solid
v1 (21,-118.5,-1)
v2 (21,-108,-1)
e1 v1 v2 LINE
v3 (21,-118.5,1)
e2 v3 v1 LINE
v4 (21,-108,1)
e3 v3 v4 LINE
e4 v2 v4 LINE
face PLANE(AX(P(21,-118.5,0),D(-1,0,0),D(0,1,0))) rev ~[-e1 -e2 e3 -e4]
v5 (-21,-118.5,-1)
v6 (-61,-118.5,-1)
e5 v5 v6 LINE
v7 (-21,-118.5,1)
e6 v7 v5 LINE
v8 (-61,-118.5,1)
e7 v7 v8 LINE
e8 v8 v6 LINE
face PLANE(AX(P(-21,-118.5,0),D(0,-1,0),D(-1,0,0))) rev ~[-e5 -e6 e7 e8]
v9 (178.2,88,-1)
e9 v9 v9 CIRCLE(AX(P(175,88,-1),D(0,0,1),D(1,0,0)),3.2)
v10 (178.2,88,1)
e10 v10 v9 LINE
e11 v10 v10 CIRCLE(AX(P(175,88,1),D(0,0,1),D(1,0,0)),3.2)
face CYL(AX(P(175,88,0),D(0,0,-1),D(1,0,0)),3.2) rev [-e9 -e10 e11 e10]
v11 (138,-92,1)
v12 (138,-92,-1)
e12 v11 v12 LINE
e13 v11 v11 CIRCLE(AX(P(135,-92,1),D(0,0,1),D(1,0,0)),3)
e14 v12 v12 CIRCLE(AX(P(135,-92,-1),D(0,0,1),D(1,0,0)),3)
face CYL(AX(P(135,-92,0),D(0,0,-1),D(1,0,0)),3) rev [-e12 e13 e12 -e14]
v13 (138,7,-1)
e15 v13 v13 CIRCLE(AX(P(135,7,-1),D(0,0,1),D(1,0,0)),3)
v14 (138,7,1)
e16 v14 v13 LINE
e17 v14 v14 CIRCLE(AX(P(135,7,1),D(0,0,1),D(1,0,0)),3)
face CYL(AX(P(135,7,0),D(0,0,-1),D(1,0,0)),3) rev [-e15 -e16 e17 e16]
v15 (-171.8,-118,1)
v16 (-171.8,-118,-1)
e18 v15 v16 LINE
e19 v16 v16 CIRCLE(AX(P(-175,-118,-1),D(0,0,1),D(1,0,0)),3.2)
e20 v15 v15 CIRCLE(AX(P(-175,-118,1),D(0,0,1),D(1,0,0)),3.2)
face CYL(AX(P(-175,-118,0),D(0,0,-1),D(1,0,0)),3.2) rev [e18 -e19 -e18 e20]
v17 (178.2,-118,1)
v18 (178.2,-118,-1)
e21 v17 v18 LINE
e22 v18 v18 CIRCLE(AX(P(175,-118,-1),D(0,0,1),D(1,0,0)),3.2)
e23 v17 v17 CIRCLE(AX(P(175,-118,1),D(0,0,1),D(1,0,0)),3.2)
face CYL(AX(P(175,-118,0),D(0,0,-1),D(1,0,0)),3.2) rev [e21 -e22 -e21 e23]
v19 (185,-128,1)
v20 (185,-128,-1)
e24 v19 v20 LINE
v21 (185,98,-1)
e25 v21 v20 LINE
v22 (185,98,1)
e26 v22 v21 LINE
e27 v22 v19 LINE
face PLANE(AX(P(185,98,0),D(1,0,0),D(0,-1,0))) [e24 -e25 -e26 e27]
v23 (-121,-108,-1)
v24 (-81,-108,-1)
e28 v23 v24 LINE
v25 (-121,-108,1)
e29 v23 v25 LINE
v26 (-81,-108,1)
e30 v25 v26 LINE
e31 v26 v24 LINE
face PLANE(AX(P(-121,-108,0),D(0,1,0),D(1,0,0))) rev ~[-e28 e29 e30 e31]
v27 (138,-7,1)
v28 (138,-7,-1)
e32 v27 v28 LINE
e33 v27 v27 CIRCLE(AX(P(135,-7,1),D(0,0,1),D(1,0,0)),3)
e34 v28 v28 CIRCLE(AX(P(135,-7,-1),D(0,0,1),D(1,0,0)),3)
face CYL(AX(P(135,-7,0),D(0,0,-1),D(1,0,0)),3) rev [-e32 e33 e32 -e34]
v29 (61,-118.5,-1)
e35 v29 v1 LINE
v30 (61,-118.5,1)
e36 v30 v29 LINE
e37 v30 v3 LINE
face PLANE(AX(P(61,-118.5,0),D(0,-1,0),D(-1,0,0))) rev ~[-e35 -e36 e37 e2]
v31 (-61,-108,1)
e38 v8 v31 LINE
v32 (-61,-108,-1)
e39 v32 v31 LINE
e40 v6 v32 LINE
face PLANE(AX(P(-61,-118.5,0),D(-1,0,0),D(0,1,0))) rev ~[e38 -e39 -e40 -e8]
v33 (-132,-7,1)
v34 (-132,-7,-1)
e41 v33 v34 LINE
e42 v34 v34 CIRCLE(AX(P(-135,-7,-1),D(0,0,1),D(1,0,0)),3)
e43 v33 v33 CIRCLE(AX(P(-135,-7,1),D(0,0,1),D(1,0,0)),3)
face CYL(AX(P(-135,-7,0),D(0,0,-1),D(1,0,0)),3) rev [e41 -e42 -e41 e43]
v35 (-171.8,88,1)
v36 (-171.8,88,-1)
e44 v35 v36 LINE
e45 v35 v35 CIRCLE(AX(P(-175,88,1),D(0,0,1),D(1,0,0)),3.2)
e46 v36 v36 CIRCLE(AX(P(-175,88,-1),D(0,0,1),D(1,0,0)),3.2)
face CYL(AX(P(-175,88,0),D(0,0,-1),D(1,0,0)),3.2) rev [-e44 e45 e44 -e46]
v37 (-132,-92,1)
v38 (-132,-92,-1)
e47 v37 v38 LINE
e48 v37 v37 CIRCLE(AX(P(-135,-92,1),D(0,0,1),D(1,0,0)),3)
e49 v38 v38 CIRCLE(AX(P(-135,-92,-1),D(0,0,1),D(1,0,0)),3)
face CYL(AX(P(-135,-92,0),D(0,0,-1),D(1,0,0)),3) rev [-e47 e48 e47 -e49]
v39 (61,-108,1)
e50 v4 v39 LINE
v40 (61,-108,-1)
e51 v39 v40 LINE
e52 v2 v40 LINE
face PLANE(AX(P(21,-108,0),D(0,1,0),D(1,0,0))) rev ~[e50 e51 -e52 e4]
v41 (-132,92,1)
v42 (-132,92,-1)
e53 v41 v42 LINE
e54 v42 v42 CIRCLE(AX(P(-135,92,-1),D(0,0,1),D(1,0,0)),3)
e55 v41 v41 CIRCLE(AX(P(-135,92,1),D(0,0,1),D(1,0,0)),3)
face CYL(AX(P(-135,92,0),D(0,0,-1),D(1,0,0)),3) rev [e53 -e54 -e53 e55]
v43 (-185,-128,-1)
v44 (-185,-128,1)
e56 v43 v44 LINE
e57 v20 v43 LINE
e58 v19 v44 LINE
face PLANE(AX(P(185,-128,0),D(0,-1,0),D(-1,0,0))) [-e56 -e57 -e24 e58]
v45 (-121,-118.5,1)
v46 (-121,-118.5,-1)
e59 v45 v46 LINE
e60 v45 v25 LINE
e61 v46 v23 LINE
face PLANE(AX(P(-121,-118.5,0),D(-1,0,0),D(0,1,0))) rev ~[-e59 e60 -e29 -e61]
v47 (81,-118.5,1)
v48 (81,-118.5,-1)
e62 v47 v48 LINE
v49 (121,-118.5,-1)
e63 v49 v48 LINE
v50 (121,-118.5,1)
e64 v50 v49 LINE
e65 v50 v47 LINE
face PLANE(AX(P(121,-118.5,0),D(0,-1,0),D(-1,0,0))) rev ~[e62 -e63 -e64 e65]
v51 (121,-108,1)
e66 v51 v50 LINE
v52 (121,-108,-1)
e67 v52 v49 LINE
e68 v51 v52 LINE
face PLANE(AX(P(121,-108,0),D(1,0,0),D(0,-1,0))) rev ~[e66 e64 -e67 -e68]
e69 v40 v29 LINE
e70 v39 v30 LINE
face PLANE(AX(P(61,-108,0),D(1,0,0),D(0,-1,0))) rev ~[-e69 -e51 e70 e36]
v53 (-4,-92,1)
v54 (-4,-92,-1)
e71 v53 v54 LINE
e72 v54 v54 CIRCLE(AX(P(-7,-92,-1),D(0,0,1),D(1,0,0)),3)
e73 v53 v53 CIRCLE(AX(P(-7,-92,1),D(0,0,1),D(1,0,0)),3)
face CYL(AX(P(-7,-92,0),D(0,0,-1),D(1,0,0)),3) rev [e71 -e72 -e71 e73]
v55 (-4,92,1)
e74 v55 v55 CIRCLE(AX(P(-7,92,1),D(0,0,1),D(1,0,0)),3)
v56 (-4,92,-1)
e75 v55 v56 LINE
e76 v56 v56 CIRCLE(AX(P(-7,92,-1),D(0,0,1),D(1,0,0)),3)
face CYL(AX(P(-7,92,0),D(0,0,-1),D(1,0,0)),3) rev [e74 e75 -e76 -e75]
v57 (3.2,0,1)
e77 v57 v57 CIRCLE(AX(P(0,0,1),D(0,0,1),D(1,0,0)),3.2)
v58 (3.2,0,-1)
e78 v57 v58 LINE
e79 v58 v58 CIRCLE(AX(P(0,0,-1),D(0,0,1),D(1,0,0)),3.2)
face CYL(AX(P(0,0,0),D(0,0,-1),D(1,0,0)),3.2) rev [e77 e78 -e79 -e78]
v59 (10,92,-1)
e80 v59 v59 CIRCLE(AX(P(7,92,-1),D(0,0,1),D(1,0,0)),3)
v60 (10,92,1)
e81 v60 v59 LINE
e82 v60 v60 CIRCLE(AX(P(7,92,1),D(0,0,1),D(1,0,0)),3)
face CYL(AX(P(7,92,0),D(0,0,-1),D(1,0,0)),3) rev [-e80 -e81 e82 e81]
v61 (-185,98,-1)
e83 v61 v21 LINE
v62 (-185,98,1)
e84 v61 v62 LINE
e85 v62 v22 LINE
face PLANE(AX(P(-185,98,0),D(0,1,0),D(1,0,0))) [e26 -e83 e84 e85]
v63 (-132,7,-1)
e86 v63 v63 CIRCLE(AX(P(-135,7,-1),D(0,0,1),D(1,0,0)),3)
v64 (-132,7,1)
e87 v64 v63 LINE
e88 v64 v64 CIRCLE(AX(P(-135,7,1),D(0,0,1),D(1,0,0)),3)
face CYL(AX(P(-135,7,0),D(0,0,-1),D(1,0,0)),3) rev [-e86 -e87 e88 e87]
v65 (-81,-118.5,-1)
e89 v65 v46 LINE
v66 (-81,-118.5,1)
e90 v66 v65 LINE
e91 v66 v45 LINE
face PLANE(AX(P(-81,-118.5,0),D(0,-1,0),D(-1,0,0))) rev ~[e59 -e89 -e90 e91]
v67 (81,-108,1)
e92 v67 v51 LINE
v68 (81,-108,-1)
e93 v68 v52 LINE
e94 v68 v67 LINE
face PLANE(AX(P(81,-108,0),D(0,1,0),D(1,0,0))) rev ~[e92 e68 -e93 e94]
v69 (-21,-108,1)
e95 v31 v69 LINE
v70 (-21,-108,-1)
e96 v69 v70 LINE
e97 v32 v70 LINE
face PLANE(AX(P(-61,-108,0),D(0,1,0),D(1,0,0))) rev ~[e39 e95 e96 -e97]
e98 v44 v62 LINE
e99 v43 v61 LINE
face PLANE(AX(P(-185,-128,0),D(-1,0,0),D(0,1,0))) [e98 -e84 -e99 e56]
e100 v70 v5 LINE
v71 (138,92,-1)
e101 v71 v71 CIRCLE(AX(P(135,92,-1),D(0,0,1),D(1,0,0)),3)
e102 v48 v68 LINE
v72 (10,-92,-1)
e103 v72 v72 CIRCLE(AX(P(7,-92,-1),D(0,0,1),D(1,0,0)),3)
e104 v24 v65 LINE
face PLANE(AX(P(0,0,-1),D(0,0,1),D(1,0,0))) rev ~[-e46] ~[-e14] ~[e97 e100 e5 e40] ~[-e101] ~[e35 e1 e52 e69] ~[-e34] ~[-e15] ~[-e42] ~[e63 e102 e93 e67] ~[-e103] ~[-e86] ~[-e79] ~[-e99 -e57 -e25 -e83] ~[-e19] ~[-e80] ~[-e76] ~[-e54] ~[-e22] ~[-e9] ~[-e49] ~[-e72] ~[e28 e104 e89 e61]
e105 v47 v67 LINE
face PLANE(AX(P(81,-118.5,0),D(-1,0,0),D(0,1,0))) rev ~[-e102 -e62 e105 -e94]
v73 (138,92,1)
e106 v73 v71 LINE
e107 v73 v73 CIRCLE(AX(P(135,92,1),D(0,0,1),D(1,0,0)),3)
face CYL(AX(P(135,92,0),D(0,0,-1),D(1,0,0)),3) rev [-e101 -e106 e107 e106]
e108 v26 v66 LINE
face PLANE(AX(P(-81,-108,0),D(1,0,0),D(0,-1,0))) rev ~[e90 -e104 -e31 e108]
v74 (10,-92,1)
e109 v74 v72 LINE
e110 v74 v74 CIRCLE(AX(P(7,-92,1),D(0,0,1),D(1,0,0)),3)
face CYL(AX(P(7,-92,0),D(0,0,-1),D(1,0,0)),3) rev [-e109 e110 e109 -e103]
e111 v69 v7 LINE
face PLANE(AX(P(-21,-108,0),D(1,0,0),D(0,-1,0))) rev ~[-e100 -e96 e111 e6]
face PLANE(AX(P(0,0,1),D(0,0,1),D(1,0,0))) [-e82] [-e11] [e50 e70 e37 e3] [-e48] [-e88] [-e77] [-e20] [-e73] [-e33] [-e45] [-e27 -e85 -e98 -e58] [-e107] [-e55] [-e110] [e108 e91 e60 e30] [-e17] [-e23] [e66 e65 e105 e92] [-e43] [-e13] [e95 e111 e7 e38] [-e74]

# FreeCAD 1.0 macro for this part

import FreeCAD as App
import Part
import Sketcher
Q = App.Units.Quantity

doc = App.newDocument("Part")
body = doc.addObject("PartDesign::Body", "Body")

sketch1 = doc.addObject("Sketcher::SketchObject", "Sketch")
body.addObject(sketch1)
sketch1.AttachmentSupport = (doc.XY_Plane, [""])
sketch1.MapMode = "FlatFace"
sketch1.addGeometry([
    Part.LineSegment(App.Vector(185, 98, 0), App.Vector(-185, 98, 0)),
    Part.LineSegment(App.Vector(-185, 98, 0), App.Vector(-185, -128, 0)),
    Part.LineSegment(App.Vector(-185, -128, 0), App.Vector(185, -128, 0)),
    Part.LineSegment(App.Vector(185, -128, 0), App.Vector(185, 98, 0)),
    Part.Circle(App.Vector(-175, -118, 0), App.Vector(0, 0, 1), 3.2),
    Part.LineSegment(App.Vector(-121, -118.5, 0), App.Vector(-121, -108, 0)),
    Part.LineSegment(App.Vector(-121, -108, 0), App.Vector(-81, -108, 0)),
    Part.LineSegment(App.Vector(-81, -108, 0), App.Vector(-81, -118.5, 0)),
    Part.LineSegment(App.Vector(-81, -118.5, 0), App.Vector(-121, -118.5, 0)),
    Part.Circle(App.Vector(-135, -92, 0), App.Vector(0, 0, 1), 3),
    Part.LineSegment(App.Vector(-61, -118.5, 0), App.Vector(-61, -108, 0)),
    Part.LineSegment(App.Vector(-61, -108, 0), App.Vector(-21, -108, 0)),
    Part.LineSegment(App.Vector(-21, -108, 0), App.Vector(-21, -118.5, 0)),
    Part.LineSegment(App.Vector(-21, -118.5, 0), App.Vector(-61, -118.5, 0)),
    Part.Circle(App.Vector(-7, -92, 0), App.Vector(0, 0, 1), 3),
    Part.LineSegment(App.Vector(21, -118.5, 0), App.Vector(21, -108, 0)),
    Part.LineSegment(App.Vector(21, -108, 0), App.Vector(61, -108, 0)),
    Part.LineSegment(App.Vector(61, -108, 0), App.Vector(61, -118.5, 0)),
    Part.LineSegment(App.Vector(61, -118.5, 0), App.Vector(21, -118.5, 0)),
    Part.Circle(App.Vector(7, -92, 0), App.Vector(0, 0, 1), 3),
    Part.LineSegment(App.Vector(81, -118.5, 0), App.Vector(81, -108, 0)),
    Part.LineSegment(App.Vector(81, -108, 0), App.Vector(121, -108, 0)),
    Part.LineSegment(App.Vector(121, -108, 0), App.Vector(121, -118.5, 0)),
    Part.LineSegment(App.Vector(121, -118.5, 0), App.Vector(81, -118.5, 0)),
    Part.Circle(App.Vector(175, -118, 0), App.Vector(0, 0, 1), 3.2),
    Part.Circle(App.Vector(135, -92, 0), App.Vector(0, 0, 1), 3),
    Part.Circle(App.Vector(-135, -7, 0), App.Vector(0, 0, 1), 3),
    Part.Circle(App.Vector(-135, 7, 0), App.Vector(0, 0, 1), 3),
    Part.Circle(App.Vector(-175, 88, 0), App.Vector(0, 0, 1), 3.2),
    Part.Circle(App.Vector(-135, 92, 0), App.Vector(0, 0, 1), 3),
    Part.Circle(App.Vector(-7, 92, 0), App.Vector(0, 0, 1), 3),
    Part.Circle(App.Vector(0, 0, 0), App.Vector(0, 0, 1), 3.2),
    Part.Circle(App.Vector(135, -7, 0), App.Vector(0, 0, 1), 3),
    Part.Circle(App.Vector(135, 7, 0), App.Vector(0, 0, 1), 3),
    Part.Circle(App.Vector(7, 92, 0), App.Vector(0, 0, 1), 3),
    Part.Circle(App.Vector(135, 92, 0), App.Vector(0, 0, 1), 3),
    Part.Circle(App.Vector(175, 88, 0), App.Vector(0, 0, 1), 3.2),
], False)
sketch1.addConstraint([
    Sketcher.Constraint("Coincident", 0, 2, 1, 1),
    Sketcher.Constraint("Coincident", 1, 2, 2, 1),
    Sketcher.Constraint("Coincident", 2, 2, 3, 1),
    Sketcher.Constraint("Coincident", 3, 2, 0, 1),
    Sketcher.Constraint("Coincident", 5, 2, 6, 1),
    Sketcher.Constraint("Coincident", 6, 2, 7, 1),
    Sketcher.Constraint("Coincident", 7, 2, 8, 1),
    Sketcher.Constraint("Coincident", 8, 2, 5, 1),
    Sketcher.Constraint("Coincident", 10, 2, 11, 1),
    Sketcher.Constraint("Coincident", 11, 2, 12, 1),
    Sketcher.Constraint("Coincident", 12, 2, 13, 1),
    Sketcher.Constraint("Coincident", 13, 2, 10, 1),
    Sketcher.Constraint("Coincident", 15, 2, 16, 1),
    Sketcher.Constraint("Coincident", 16, 2, 17, 1),
    Sketcher.Constraint("Coincident", 17, 2, 18, 1),
    Sketcher.Constraint("Coincident", 18, 2, 15, 1),
    Sketcher.Constraint("Coincident", 20, 2, 21, 1),
    Sketcher.Constraint("Coincident", 21, 2, 22, 1),
    Sketcher.Constraint("Coincident", 22, 2, 23, 1),
    Sketcher.Constraint("Coincident", 23, 2, 20, 1),
    Sketcher.Constraint("Horizontal", 0),
    Sketcher.Constraint("Vertical", 1),
    Sketcher.Constraint("Horizontal", 2),
    Sketcher.Constraint("Vertical", 3),
    Sketcher.Constraint("Vertical", 5),
    Sketcher.Constraint("Horizontal", 6),
    Sketcher.Constraint("Vertical", 7),
    Sketcher.Constraint("Horizontal", 8),
    Sketcher.Constraint("Vertical", 10),
    Sketcher.Constraint("Horizontal", 11),
    Sketcher.Constraint("Vertical", 12),
    Sketcher.Constraint("Horizontal", 13),
    Sketcher.Constraint("Vertical", 15),
    Sketcher.Constraint("Horizontal", 16),
    Sketcher.Constraint("Vertical", 17),
    Sketcher.Constraint("Horizontal", 18),
    Sketcher.Constraint("Vertical", 20),
    Sketcher.Constraint("Horizontal", 21),
    Sketcher.Constraint("Vertical", 22),
    Sketcher.Constraint("Horizontal", 23),
    Sketcher.Constraint("Coincident", 31, 3, -1, 1),
    Sketcher.Constraint("Equal", 9, 14),
    Sketcher.Constraint("Equal", 14, 19),
    Sketcher.Constraint("Equal", 4, 24),
    Sketcher.Constraint("Equal", 19, 25),
    Sketcher.Constraint("Equal", 25, 26),
    Sketcher.Constraint("Equal", 26, 27),
    Sketcher.Constraint("Equal", 24, 28),
    Sketcher.Constraint("Equal", 27, 29),
    Sketcher.Constraint("Equal", 29, 30),
    Sketcher.Constraint("Equal", 28, 31),
    Sketcher.Constraint("Equal", 30, 32),
    Sketcher.Constraint("Equal", 32, 33),
    Sketcher.Constraint("Equal", 33, 34),
    Sketcher.Constraint("Equal", 34, 35),
    Sketcher.Constraint("Equal", 31, 36),
    Sketcher.Constraint("Symmetric", 25, 3, 29, 3, -1, 1),
    Sketcher.Constraint("Symmetric", 19, 3, 30, 3, -1, 1),
    Sketcher.Constraint("Symmetric", 27, 3, 32, 3, -1, 1),
    Sketcher.Constraint("Symmetric", 26, 3, 33, 3, -1, 1),
    Sketcher.Constraint("Symmetric", 14, 3, 34, 3, -1, 1),
    Sketcher.Constraint("Symmetric", 9, 3, 35, 3, -1, 1),
    Sketcher.Constraint("Symmetric", 14, 3, 19, 3, -2),
    Sketcher.Constraint("Symmetric", 4, 3, 24, 3, -2),
    Sketcher.Constraint("Symmetric", 9, 3, 25, 3, -2),
    Sketcher.Constraint("Symmetric", 26, 3, 32, 3, -2),
    Sketcher.Constraint("Symmetric", 28, 3, 36, 3, -2),
    Sketcher.Constraint("Symmetric", 11, 2, 15, 2, -2),
    Sketcher.Constraint("Symmetric", 13, 2, 17, 2, -2),
    Sketcher.Constraint("Symmetric", 6, 2, 20, 2, -2),
    Sketcher.Constraint("Symmetric", 8, 2, 22, 2, -2),
    Sketcher.Constraint("Horizontal", 9, 3, 14, 3),
    Sketcher.Constraint("Horizontal", 6, 2, 10, 2),
    Sketcher.Constraint("Horizontal", 8, 2, 12, 2),
    Sketcher.Constraint("Vertical", 9, 3, 26, 3),
    Sketcher.Constraint("Vertical", 4, 3, 28, 3),
    Sketcher.Constraint("Equal", 8, 11),
    Sketcher.Constraint("Diameter", 9, Q("6 mm")),
    Sketcher.Constraint("Diameter", 4, Q("6.4 mm")),
    Sketcher.Constraint("DistanceX", 0, 2, 0, 1, Q("370 mm")),
    Sketcher.Constraint("DistanceX", 6, 1, 6, 2, Q("40 mm")),
    Sketcher.Constraint("DistanceY", 1, 2, 1, 1, Q("226 mm")),
    Sketcher.Constraint("DistanceY", 5, 1, 5, 2, Q("10.5 mm")),
    Sketcher.Constraint("DistanceX", 4, 3, -1, 1, Q("175 mm")),
    Sketcher.Constraint("DistanceY", 4, 3, -1, 1, Q("118 mm")),
    Sketcher.Constraint("DistanceX", 9, 3, -1, 1, Q("135 mm")),
    Sketcher.Constraint("DistanceY", 9, 3, -1, 1, Q("92 mm")),
    Sketcher.Constraint("DistanceX", 14, 3, -1, 1, Q("7 mm")),
    Sketcher.Constraint("DistanceY", 26, 3, -1, 1, Q("7 mm")),
    Sketcher.Constraint("DistanceY", -1, 1, 28, 3, Q("88 mm")),
    Sketcher.Constraint("DistanceX", 0, 2, -1, 1, Q("185 mm")),
    Sketcher.Constraint("DistanceY", -1, 1, 0, 2, Q("98 mm")),
    Sketcher.Constraint("DistanceX", 5, 2, -1, 1, Q("121 mm")),
    Sketcher.Constraint("DistanceY", 5, 2, -1, 1, Q("108 mm")),
    Sketcher.Constraint("DistanceX", 10, 2, -1, 1, Q("61 mm")),
])
pad1 = doc.addObject("PartDesign::Pad", "Pad")
body.addObject(pad1)
pad1.Profile = sketch1
pad1.Length = 2
pad1.Midplane = True

doc.recompute()
